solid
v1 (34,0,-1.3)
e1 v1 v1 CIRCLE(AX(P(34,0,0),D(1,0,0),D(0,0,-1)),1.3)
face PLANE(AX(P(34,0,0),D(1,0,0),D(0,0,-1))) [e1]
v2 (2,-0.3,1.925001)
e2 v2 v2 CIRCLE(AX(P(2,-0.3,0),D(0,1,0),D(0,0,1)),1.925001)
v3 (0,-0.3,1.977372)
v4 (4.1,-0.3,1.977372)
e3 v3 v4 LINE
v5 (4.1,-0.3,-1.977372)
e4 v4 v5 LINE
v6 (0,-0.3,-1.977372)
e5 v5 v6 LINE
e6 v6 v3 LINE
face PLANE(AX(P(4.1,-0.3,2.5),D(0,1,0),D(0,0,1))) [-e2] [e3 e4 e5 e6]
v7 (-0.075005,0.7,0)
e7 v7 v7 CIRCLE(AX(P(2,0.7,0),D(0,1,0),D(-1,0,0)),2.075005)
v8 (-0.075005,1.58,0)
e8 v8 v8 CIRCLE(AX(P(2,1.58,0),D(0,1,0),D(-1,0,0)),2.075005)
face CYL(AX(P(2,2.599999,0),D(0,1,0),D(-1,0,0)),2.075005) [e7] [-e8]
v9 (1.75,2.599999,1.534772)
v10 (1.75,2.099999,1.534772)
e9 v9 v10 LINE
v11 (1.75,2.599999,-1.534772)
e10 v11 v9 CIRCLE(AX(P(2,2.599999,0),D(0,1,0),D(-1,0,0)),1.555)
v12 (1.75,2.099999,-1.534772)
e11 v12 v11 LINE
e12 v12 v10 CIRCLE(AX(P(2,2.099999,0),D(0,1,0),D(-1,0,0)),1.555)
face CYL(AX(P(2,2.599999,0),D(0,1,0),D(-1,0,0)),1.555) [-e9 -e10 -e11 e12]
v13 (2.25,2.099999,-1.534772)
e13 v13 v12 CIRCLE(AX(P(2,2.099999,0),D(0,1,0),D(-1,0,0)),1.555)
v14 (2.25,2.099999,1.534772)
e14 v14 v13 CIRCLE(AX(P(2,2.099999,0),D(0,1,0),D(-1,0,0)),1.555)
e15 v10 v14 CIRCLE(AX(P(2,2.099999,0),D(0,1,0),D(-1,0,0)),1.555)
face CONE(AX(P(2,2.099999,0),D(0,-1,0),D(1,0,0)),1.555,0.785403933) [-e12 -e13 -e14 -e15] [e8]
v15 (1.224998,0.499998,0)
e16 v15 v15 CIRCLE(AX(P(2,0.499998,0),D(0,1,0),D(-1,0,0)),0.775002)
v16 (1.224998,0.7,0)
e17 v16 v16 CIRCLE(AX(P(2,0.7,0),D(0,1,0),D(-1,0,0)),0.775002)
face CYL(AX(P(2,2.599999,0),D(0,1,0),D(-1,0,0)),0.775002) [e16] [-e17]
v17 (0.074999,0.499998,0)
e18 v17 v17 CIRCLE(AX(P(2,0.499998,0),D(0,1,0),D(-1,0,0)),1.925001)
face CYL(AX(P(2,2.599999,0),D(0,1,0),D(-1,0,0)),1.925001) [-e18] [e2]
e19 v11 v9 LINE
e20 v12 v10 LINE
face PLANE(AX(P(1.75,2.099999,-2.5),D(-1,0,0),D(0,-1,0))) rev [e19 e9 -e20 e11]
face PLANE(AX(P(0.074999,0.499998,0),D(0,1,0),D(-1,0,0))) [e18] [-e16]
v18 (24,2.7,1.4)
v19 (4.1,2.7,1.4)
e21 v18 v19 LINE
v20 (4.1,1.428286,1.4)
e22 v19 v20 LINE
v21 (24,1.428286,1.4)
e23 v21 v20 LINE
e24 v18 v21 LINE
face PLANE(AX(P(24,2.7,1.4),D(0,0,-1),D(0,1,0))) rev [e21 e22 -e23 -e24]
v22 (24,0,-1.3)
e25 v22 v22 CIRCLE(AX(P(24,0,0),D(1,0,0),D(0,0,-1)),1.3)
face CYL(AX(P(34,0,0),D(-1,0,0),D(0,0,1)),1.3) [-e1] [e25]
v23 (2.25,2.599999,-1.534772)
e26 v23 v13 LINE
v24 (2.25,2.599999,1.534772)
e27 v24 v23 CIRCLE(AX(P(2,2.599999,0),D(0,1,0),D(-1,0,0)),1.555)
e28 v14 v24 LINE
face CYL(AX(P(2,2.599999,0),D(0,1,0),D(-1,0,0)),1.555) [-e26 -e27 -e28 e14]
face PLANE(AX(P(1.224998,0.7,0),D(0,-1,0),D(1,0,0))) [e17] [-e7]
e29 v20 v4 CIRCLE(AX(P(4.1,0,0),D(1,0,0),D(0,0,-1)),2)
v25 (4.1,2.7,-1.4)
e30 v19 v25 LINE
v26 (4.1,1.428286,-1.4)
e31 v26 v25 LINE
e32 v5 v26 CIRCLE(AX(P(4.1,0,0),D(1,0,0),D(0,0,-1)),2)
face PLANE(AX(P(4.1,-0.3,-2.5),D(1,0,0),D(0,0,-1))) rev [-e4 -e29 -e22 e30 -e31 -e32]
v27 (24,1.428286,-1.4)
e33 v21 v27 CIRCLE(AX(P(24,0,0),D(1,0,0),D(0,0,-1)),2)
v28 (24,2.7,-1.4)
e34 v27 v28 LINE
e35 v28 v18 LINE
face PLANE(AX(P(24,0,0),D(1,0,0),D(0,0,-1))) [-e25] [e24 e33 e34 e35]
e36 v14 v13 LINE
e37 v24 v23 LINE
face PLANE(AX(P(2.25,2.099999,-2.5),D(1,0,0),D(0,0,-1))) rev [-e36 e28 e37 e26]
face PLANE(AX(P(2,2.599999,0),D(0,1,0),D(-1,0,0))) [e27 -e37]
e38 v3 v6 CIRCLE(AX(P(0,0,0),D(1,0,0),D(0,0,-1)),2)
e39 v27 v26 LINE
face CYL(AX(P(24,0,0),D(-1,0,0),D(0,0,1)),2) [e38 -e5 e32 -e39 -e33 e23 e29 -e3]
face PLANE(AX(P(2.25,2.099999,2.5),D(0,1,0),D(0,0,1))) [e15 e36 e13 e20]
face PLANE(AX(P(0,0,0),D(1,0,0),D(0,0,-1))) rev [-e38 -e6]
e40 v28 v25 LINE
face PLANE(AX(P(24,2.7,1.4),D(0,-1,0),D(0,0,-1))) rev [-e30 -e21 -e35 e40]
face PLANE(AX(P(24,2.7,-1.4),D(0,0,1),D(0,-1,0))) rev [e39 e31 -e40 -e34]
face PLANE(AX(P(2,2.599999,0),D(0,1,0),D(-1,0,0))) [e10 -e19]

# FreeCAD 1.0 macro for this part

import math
import FreeCAD as App
import Part
import Sketcher
from FreeCAD import Vector
Q = App.Units.Quantity


def add_polygon(sketch, points):
    """Adds a closed chain of lines whose ends are joined by coincident constraints."""
    first, n = sketch.GeometryCount, len(points)
    for a, b in zip(points, points[1:] + points[:1]):
        sketch.addGeometry(Part.LineSegment(App.Vector(*a, 0), App.Vector(*b, 0)), False)
    for i in range(n):
        sketch.addConstraint(Sketcher.Constraint("Coincident", first + i, 2, first + (i + 1) % n, 1))

doc = App.newDocument("Part")
body = doc.addObject("PartDesign::Body", "Body")

sketch1 = body.newObject("Sketcher::SketchObject", "Sketch")
sketch1.AttachmentSupport = (doc.getObject("YZ_Plane"), [""])
sketch1.MapMode = "FlatFace"
sketch1.addGeometry([
    Part.LineSegment(Vector(2.7, -1.4, 0), Vector(2.7, 1.4, 0)),
    Part.LineSegment(Vector(2.7, 1.4, 0), Vector(1.428286, 1.4, 0)),
    Part.ArcOfCircle(Part.Circle(Vector(0, 0, 0), Vector(0, 0, 1), 2), math.radians(44.427004), math.radians(315.572996)),
    Part.LineSegment(Vector(1.428286, -1.4, 0), Vector(2.7, -1.4, 0)),
], False)
sketch1.addConstraint([
    Sketcher.Constraint("Coincident", 0, 2, 1, 1),
    Sketcher.Constraint("Coincident", 1, 2, 2, 1),
    Sketcher.Constraint("Coincident", 2, 2, 3, 1),
    Sketcher.Constraint("Coincident", 3, 2, 0, 1),
    Sketcher.Constraint("Vertical", 0),
    Sketcher.Constraint("Horizontal", 1),
    Sketcher.Constraint("Horizontal", 3),
    Sketcher.Constraint("Coincident", 2, 3, -1, 1),
    Sketcher.Constraint("Vertical", 1, 2, 2, 2),
    Sketcher.Constraint("Radius", 2, Q("2 mm")),
    Sketcher.Constraint("DistanceY", 0, 1, 0, 2, Q("2.8 mm")),
    Sketcher.Constraint("DistanceX", -1, 1, 0, 2, Q("2.7 mm")),
])
pad1 = body.newObject("PartDesign::Pad", "Pad")
pad1.Profile = sketch1
pad1.Length = 24

sketch2 = body.newObject("Sketcher::SketchObject", "Sketch001")
sketch2.AttachmentSupport = (doc.getObject("XZ_Plane"), [""])
sketch2.MapMode = "FlatFace"
sketch2.AttachmentOffset = App.Placement(Vector(0, 0, -2.7), App.Rotation())
add_polygon(sketch2, [(-4.1, -2.5), (-4.1, 2.5), (4.1, 2.5), (4.1, -2.5)])
sketch2.addConstraint([
    Sketcher.Constraint("Vertical", 0),
    Sketcher.Constraint("Horizontal", 1),
    Sketcher.Constraint("Vertical", 2),
    Sketcher.Constraint("Horizontal", 3),
    Sketcher.Constraint("Symmetric", 0, 2, 2, 2, -1, 1),
    Sketcher.Constraint("DistanceY", 0, 1, 0, 2, Q("5 mm")),
    Sketcher.Constraint("DistanceX", 1, 1, 1, 2, Q("8.2 mm")),
])
pocket1 = body.newObject("PartDesign::Pocket", "Pocket")
pocket1.Profile = sketch2
pocket1.Length = 3
pocket1.Reversed = True

sketch3 = body.newObject("Sketcher::SketchObject", "Sketch002")
sketch3.AttachmentSupport = (doc.getObject("XY_Plane"), [""])
sketch3.MapMode = "FlatFace"
add_polygon(sketch3, [(1.224998, 0.499998), (0.074999, 0.499998), (0.074999, -0.3), (2, -0.3), (2, 2.599999), (0.445, 2.599999), (0.445, 2.099999), (-0.075005, 1.58), (-0.075005, 0.7), (1.224998, 0.7)])
sketch3.addGeometry(Part.LineSegment(Vector(2, 2.599999, 0), Vector(2, -0.3, 0)), True)
sketch3.addConstraint([
    Sketcher.Constraint("Horizontal", 0),
    Sketcher.Constraint("Vertical", 1),
    Sketcher.Constraint("Horizontal", 2),
    Sketcher.Constraint("Vertical", 3),
    Sketcher.Constraint("Horizontal", 4),
    Sketcher.Constraint("Vertical", 5),
    Sketcher.Constraint("Vertical", 7),
    Sketcher.Constraint("Horizontal", 8),
    Sketcher.Constraint("Vertical", 9),
    Sketcher.Constraint("Vertical", 10),
    Sketcher.Constraint("Coincident", 10, 1, 3, 2),
    Sketcher.Constraint("Horizontal", 1, 2, 10, 2),
    Sketcher.Constraint("DistanceY", 3, 1, 3, 2, Q("2.899999 mm")),
    Sketcher.Constraint("DistanceY", 5, 2, 5, 1, Q("0.5 mm")),
    Sketcher.Constraint("DistanceY", 9, 2, 9, 1, Q("0.200002 mm")),
    Sketcher.Constraint("DistanceX", -1, 1, 2, 2, Q("2 mm")),
    Sketcher.Constraint("DistanceY", 1, 2, 7, 2, Q("1 mm")),
    Sketcher.Constraint("DistanceX", 0, 2, 0, 1, Q("1.149999 mm")),
    Sketcher.Constraint("DistanceY", 7, 2, 7, 1, Q("0.88 mm")),
    Sketcher.Constraint("DistanceY", 1, 2, -1, 1, Q("0.3 mm")),
    Sketcher.Constraint("DistanceX", 2, 1, 2, 2, Q("1.925001 mm")),
    Sketcher.Constraint("DistanceX", 4, 2, 4, 1, Q("1.555 mm")),
    Sketcher.Constraint("DistanceX", 8, 1, 8, 2, Q("1.300003 mm")),
])
revolution = body.newObject("PartDesign::Revolution", "Revolution")
revolution.Profile = sketch3
revolution.ReferenceAxis = (sketch3, ["Axis0"])
revolution.Angle = 360

sketch4 = body.newObject("Sketcher::SketchObject", "Sketch003")
sketch4.AttachmentSupport = (doc.getObject("XZ_Plane"), [""])
sketch4.MapMode = "FlatFace"
sketch4.AttachmentOffset = App.Placement(Vector(0, 0, -2.599999), App.Rotation())
add_polygon(sketch4, [(1.75, -2.5), (1.75, 2.5), (2.25, 2.5), (2.25, -2.5)])
sketch4.addConstraint([
    Sketcher.Constraint("Vertical", 0),
    Sketcher.Constraint("Horizontal", 1),
    Sketcher.Constraint("Vertical", 2),
    Sketcher.Constraint("Horizontal", 3),
    Sketcher.Constraint("DistanceY", 0, 1, 0, 2, Q("5 mm")),
    Sketcher.Constraint("DistanceX", 1, 1, 1, 2, Q("0.5 mm")),
    Sketcher.Constraint("DistanceY", -1, 1, 0, 2, Q("2.5 mm")),
    Sketcher.Constraint("DistanceX", -1, 1, 0, 2, Q("1.75 mm")),
])
pocket2 = body.newObject("PartDesign::Pocket", "Pocket001")
pocket2.Profile = sketch4
pocket2.Length = 0.5
pocket2.Reversed = True

sketch5 = body.newObject("Sketcher::SketchObject", "Sketch004")
sketch5.AttachmentSupport = (doc.getObject("YZ_Plane"), [""])
sketch5.MapMode = "FlatFace"
sketch5.AttachmentOffset = App.Placement(Vector(0, 0, 24), App.Rotation())
sketch5.addGeometry(Part.Circle(Vector(0, 0, 0), Vector(0, 0, 1), 1.3), False)
sketch5.addConstraint([
    Sketcher.Constraint("Coincident", 0, 3, -1, 1),
    Sketcher.Constraint("Diameter", 0, Q("2.6 mm")),
])
pad2 = body.newObject("PartDesign::Pad", "Pad001")
pad2.Profile = sketch5
pad2.Length = 10

doc.recompute()
